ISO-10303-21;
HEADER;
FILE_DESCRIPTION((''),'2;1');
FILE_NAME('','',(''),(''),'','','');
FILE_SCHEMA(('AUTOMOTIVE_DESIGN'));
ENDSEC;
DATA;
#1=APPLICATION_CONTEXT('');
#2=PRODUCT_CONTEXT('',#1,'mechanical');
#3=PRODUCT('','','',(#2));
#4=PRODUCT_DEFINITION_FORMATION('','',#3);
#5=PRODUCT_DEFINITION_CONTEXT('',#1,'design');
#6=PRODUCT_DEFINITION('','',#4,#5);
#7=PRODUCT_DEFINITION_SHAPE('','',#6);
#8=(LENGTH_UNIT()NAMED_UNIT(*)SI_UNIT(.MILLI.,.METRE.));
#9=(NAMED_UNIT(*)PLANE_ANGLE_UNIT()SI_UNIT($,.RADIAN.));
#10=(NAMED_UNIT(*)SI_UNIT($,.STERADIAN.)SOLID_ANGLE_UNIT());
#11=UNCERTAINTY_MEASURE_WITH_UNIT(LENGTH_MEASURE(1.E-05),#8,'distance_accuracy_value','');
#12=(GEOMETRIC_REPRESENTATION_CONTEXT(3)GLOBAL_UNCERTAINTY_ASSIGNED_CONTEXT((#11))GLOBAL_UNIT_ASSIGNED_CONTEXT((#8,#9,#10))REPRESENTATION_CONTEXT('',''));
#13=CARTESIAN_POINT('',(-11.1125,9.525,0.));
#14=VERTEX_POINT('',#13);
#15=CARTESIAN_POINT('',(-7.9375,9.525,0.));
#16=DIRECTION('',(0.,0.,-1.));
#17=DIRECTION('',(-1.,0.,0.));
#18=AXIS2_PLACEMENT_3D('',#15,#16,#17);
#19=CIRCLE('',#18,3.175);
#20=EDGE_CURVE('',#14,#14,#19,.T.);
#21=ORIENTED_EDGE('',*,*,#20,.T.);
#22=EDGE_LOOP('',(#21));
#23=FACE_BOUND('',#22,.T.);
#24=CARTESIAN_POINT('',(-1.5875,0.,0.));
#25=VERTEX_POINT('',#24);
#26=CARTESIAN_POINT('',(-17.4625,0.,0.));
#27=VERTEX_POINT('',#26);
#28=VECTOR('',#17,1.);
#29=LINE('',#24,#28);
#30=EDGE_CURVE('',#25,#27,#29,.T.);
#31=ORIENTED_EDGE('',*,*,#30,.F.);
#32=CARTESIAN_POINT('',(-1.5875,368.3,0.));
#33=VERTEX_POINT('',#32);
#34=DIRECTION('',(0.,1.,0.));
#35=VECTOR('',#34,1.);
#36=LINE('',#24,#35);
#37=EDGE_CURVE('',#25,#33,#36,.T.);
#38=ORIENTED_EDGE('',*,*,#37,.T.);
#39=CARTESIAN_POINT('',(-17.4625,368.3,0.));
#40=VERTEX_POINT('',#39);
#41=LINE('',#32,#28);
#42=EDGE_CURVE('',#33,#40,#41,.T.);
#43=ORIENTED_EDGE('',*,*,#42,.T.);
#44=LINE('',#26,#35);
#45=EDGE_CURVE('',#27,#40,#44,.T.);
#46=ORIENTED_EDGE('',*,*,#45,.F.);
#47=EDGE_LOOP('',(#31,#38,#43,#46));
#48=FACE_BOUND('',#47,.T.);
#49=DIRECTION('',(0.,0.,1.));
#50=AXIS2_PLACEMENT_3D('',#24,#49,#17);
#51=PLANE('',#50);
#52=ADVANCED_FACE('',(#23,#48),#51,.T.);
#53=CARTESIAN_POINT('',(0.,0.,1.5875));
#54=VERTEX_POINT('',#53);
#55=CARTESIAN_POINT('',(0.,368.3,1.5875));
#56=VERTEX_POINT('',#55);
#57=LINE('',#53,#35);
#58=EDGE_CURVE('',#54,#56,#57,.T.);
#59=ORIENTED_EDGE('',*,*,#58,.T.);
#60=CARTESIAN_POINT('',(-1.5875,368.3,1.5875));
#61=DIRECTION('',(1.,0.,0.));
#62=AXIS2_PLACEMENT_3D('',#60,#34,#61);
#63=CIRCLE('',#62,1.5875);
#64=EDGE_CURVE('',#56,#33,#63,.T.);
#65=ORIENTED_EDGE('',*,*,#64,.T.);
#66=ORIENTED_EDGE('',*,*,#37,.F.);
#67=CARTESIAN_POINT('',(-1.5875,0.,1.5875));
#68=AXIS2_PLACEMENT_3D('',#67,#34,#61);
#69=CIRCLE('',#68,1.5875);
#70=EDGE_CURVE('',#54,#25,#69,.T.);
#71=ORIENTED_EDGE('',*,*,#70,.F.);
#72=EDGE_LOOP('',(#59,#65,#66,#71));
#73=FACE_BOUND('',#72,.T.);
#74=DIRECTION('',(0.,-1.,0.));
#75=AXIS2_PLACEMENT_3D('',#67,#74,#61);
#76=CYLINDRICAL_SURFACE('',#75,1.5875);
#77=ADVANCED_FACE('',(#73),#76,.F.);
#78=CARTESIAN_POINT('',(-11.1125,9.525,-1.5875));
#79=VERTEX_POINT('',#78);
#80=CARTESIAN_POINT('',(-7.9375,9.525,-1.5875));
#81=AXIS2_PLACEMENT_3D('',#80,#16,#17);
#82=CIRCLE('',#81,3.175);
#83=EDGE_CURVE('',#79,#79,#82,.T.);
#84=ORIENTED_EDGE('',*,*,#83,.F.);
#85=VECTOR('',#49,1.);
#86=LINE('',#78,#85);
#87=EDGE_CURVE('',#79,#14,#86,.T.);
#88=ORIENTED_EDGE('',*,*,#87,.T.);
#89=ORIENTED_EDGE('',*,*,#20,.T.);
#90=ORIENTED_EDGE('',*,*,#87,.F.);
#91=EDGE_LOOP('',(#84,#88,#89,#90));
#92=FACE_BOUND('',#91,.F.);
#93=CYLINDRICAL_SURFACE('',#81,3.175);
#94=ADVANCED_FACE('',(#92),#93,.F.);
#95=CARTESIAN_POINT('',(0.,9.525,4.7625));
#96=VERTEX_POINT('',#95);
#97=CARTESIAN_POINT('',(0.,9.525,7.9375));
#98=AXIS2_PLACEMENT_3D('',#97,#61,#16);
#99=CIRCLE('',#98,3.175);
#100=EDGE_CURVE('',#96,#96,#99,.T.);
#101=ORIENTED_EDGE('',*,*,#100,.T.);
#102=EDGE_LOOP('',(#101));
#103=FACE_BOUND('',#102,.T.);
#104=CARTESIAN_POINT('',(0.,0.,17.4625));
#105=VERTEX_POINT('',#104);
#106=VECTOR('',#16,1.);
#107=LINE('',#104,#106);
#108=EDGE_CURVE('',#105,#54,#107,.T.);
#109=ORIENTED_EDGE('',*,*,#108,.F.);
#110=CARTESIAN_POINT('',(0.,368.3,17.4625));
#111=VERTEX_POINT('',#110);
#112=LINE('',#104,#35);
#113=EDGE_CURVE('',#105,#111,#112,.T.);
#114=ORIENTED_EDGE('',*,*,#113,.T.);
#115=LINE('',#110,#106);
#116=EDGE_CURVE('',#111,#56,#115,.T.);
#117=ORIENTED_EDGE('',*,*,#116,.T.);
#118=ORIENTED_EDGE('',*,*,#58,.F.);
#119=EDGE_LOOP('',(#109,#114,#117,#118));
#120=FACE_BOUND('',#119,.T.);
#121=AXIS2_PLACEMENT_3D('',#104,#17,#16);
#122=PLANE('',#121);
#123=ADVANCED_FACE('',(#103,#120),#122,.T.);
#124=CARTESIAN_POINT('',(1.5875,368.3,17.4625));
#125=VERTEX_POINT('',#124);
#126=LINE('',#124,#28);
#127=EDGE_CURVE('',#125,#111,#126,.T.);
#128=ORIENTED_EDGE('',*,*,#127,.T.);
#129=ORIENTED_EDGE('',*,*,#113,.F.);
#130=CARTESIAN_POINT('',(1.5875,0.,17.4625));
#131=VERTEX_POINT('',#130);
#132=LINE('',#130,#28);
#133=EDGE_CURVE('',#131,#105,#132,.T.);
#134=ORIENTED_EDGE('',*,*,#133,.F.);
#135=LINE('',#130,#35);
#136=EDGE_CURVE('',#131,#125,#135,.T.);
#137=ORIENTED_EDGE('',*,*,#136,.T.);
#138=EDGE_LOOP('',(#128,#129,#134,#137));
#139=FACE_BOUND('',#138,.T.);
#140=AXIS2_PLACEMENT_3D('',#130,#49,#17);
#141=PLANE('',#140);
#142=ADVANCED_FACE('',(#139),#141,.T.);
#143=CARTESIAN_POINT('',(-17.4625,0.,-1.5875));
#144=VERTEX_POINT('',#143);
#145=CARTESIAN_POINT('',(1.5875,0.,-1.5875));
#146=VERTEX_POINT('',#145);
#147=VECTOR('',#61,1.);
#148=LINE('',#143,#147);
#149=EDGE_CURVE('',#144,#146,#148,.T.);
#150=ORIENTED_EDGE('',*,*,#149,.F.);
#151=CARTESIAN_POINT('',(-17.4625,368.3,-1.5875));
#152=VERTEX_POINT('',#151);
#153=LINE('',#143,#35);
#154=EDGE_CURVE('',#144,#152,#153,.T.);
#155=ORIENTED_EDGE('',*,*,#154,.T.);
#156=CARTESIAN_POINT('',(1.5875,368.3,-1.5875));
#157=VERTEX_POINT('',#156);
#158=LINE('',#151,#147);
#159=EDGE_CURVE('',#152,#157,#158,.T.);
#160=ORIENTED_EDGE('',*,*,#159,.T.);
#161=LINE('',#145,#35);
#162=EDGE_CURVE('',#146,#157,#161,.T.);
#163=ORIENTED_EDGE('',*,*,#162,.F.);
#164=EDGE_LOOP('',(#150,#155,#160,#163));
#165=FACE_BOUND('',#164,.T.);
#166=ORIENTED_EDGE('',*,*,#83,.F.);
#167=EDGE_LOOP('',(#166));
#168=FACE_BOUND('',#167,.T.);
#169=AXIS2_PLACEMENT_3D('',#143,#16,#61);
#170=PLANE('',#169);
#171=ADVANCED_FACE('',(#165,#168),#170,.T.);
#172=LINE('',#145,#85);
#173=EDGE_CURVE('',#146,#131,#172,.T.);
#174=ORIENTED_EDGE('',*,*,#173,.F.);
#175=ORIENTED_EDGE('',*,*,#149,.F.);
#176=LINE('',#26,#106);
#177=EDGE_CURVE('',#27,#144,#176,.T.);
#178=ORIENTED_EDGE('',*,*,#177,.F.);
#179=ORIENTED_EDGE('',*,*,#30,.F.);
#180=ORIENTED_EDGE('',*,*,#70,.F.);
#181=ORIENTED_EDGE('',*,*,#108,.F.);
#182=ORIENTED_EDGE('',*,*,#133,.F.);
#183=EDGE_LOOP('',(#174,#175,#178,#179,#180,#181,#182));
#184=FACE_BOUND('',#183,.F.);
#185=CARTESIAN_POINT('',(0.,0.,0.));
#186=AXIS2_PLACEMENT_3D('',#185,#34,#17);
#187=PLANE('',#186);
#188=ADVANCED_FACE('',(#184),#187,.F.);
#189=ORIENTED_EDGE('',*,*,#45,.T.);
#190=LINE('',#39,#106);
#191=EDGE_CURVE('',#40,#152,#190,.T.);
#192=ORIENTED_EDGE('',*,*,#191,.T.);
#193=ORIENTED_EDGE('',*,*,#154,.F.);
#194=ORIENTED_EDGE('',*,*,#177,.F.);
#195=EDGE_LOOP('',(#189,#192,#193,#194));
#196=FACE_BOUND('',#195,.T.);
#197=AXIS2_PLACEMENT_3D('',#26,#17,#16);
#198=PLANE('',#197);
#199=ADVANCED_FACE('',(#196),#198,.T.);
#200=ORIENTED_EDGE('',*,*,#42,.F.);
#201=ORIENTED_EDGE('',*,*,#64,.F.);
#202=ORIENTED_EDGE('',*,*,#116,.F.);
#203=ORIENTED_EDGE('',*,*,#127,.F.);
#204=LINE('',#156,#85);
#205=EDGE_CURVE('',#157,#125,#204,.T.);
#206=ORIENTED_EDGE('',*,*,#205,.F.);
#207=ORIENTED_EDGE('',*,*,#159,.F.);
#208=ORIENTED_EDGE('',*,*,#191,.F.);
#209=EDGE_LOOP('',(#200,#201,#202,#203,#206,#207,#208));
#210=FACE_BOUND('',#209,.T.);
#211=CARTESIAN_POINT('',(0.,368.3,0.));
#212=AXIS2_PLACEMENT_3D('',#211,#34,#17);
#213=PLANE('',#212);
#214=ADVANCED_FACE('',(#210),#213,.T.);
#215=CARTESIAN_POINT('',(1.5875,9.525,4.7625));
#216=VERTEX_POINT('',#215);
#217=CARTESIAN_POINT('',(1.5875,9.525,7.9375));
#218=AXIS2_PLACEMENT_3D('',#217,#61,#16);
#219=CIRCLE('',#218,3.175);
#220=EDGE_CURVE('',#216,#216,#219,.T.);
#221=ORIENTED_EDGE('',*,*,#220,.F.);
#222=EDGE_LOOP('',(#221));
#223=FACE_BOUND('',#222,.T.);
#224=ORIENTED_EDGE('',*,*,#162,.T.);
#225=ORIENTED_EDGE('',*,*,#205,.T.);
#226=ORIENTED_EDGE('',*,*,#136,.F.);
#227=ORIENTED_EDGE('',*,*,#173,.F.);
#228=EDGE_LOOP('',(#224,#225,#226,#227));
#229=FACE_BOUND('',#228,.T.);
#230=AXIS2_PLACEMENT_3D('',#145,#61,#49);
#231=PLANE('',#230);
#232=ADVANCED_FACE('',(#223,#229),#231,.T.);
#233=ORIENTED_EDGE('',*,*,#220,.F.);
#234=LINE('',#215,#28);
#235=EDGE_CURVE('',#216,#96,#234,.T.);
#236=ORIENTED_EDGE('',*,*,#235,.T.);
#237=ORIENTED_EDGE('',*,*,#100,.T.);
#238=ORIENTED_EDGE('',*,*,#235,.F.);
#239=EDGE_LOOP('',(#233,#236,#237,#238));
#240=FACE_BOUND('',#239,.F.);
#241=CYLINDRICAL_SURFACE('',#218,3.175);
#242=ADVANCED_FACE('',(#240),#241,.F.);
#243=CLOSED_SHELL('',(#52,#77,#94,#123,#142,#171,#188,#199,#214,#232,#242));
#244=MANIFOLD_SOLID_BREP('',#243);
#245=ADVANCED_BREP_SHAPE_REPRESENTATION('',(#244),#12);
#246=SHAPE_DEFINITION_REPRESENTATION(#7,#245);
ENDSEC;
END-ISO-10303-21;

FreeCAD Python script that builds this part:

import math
import FreeCAD as App
import Part
import Sketcher
from FreeCAD import Vector
Q = App.Units.Quantity

doc = App.newDocument("Part")
params = doc.addObject("Spreadsheet::Sheet", "Params")
for row, (alias, value) in enumerate([
    ("sketch1_radius", "0.0625 in"),
    ("sketch1_width", "0.75 in"),
    ("sketch1_width2", "0.0625 in"),
    ("pad1_length", "14.5 in"),
    ("sketch2_diameter", "0.25 in"),
    ("sketch3_diameter", "0.25 in"),
], start=1):
    params.set(f"A{row}", alias)
    params.set(f"B{row}", "=" + value)
    params.setAlias(f"B{row}", alias)

body = doc.addObject("PartDesign::Body", "Body")

# Sketch on XZ plane
sketch1 = body.newObject("Sketcher::SketchObject", "Sketch")
sketch1.AttachmentSupport = (doc.getObject("XZ_Plane"), [""])
sketch1.MapMode = "FlatFace"
sketch1.addGeometry(Part.LineSegment(Vector(0, 1.5875, 0), Vector(0, 17.4625, 0)), False)
sketch1.addGeometry(Part.LineSegment(Vector(0, 17.4625, 0), Vector(1.5875, 17.4625, 0)), False)
sketch1.addGeometry(Part.LineSegment(Vector(1.5875, 17.4625, 0), Vector(1.5875, -1.5875, 0)), False)
sketch1.addGeometry(Part.LineSegment(Vector(1.5875, -1.5875, 0), Vector(-17.4625, -1.5875, 0)), False)
sketch1.addGeometry(Part.LineSegment(Vector(-17.4625, -1.5875, 0), Vector(-17.4625, 0, 0)), False)
sketch1.addGeometry(Part.LineSegment(Vector(-17.4625, 0, 0), Vector(-1.5875, 0, 0)), False)
sketch1.addGeometry(Part.ArcOfCircle(Part.Circle(Vector(-1.5875, 1.5875, 0), Vector(0, 0, 1), 1.5875), math.radians(-90), math.radians(0)), False)
sketch1.addConstraint(Sketcher.Constraint("Coincident", 0, 2, 1, 1))
sketch1.addConstraint(Sketcher.Constraint("Coincident", 1, 2, 2, 1))
sketch1.addConstraint(Sketcher.Constraint("Coincident", 2, 2, 3, 1))
sketch1.addConstraint(Sketcher.Constraint("Coincident", 3, 2, 4, 1))
sketch1.addConstraint(Sketcher.Constraint("Coincident", 4, 2, 5, 1))
sketch1.addConstraint(Sketcher.Constraint("Tangent", 5, 2, 6, 1))
sketch1.addConstraint(Sketcher.Constraint("Tangent", 6, 2, 0, 1))
sketch1.addConstraint(Sketcher.Constraint("Vertical", 0))
sketch1.addConstraint(Sketcher.Constraint("Horizontal", 1))
sketch1.addConstraint(Sketcher.Constraint("Vertical", 2))
sketch1.addConstraint(Sketcher.Constraint("Horizontal", 3))
sketch1.addConstraint(Sketcher.Constraint("Vertical", 4))
sketch1.addConstraint(Sketcher.Constraint("Horizontal", 5))
sketch1.addConstraint(Sketcher.Constraint("PointOnObject", 0, 2, -2))
sketch1.addConstraint(Sketcher.Constraint("PointOnObject", 4, 2, -1))
sketch1.addConstraint(Sketcher.Constraint("Equal", 5, 0))
sketch1.addConstraint(Sketcher.Constraint("Equal", 3, 2))
sketch1.addConstraint(Sketcher.Constraint("Radius", 6, Q("0.0625 in")))
sketch1.addConstraint(Sketcher.Constraint("DistanceX", 3, 2, 3, 1, Q("0.75 in")))
sketch1.addConstraint(Sketcher.Constraint("DistanceX", 1, 1, 1, 2, Q("0.0625 in")))
sketch1.setExpression("Constraints[17]", "Params.sketch1_radius")
sketch1.setExpression("Constraints[18]", "Params.sketch1_width")
sketch1.setExpression("Constraints[19]", "Params.sketch1_width2")
pad1 = body.newObject("PartDesign::Pad", "Pad")
pad1.Profile = sketch1
pad1.setExpression("Length", "Params.pad1_length")
pad1.Reversed = True

# Sketch on XY plane
sketch2 = body.newObject("Sketcher::SketchObject", "Sketch001")
sketch2.AttachmentSupport = (doc.getObject("XY_Plane"), [""])
sketch2.MapMode = "FlatFace"
sketch2.AttachmentOffset = App.Placement(Vector(0, 0, -0.0625 * 25.4), App.Rotation())
sketch2.addGeometry(Part.Circle(Vector(-7.9375, 9.525, 0), Vector(0, 0, 1), 3.175), False)
sketch2.addConstraint(Sketcher.Constraint("Diameter", 0, Q("0.25 in")))
sketch2.addConstraint(Sketcher.Constraint("DistanceY", -1, 1, 0, 3, Q("0.375 in")))
sketch2.addConstraint(Sketcher.Constraint("DistanceX", 0, 3, -1, 1, Q("0.3125 in")))
sketch2.setExpression("Constraints[0]", "Params.sketch2_diameter")
pocket1 = body.newObject("PartDesign::Pocket", "Pocket")
pocket1.Profile = sketch2
pocket1.Type = "ThroughAll"
pocket1.Reversed = True

# Sketch on YZ plane
sketch3 = body.newObject("Sketcher::SketchObject", "Sketch002")
sketch3.AttachmentSupport = (doc.getObject("YZ_Plane"), [""])
sketch3.MapMode = "FlatFace"
sketch3.AttachmentOffset = App.Placement(Vector(0, 0, 0.0625 * 25.4), App.Rotation())
sketch3.addGeometry(Part.Circle(Vector(9.525, 7.9375, 0), Vector(0, 0, 1), 3.175), False)
sketch3.addConstraint(Sketcher.Constraint("Diameter", 0, Q("0.25 in")))
sketch3.addConstraint(Sketcher.Constraint("DistanceX", -1, 1, 0, 3, Q("0.375 in")))
sketch3.addConstraint(Sketcher.Constraint("DistanceY", -1, 1, 0, 3, Q("0.3125 in")))
sketch3.setExpression("Constraints[0]", "Params.sketch3_diameter")
pocket2 = body.newObject("PartDesign::Pocket", "Pocket001")
pocket2.Profile = sketch3
pocket2.Type = "ThroughAll"

doc.recompute()
